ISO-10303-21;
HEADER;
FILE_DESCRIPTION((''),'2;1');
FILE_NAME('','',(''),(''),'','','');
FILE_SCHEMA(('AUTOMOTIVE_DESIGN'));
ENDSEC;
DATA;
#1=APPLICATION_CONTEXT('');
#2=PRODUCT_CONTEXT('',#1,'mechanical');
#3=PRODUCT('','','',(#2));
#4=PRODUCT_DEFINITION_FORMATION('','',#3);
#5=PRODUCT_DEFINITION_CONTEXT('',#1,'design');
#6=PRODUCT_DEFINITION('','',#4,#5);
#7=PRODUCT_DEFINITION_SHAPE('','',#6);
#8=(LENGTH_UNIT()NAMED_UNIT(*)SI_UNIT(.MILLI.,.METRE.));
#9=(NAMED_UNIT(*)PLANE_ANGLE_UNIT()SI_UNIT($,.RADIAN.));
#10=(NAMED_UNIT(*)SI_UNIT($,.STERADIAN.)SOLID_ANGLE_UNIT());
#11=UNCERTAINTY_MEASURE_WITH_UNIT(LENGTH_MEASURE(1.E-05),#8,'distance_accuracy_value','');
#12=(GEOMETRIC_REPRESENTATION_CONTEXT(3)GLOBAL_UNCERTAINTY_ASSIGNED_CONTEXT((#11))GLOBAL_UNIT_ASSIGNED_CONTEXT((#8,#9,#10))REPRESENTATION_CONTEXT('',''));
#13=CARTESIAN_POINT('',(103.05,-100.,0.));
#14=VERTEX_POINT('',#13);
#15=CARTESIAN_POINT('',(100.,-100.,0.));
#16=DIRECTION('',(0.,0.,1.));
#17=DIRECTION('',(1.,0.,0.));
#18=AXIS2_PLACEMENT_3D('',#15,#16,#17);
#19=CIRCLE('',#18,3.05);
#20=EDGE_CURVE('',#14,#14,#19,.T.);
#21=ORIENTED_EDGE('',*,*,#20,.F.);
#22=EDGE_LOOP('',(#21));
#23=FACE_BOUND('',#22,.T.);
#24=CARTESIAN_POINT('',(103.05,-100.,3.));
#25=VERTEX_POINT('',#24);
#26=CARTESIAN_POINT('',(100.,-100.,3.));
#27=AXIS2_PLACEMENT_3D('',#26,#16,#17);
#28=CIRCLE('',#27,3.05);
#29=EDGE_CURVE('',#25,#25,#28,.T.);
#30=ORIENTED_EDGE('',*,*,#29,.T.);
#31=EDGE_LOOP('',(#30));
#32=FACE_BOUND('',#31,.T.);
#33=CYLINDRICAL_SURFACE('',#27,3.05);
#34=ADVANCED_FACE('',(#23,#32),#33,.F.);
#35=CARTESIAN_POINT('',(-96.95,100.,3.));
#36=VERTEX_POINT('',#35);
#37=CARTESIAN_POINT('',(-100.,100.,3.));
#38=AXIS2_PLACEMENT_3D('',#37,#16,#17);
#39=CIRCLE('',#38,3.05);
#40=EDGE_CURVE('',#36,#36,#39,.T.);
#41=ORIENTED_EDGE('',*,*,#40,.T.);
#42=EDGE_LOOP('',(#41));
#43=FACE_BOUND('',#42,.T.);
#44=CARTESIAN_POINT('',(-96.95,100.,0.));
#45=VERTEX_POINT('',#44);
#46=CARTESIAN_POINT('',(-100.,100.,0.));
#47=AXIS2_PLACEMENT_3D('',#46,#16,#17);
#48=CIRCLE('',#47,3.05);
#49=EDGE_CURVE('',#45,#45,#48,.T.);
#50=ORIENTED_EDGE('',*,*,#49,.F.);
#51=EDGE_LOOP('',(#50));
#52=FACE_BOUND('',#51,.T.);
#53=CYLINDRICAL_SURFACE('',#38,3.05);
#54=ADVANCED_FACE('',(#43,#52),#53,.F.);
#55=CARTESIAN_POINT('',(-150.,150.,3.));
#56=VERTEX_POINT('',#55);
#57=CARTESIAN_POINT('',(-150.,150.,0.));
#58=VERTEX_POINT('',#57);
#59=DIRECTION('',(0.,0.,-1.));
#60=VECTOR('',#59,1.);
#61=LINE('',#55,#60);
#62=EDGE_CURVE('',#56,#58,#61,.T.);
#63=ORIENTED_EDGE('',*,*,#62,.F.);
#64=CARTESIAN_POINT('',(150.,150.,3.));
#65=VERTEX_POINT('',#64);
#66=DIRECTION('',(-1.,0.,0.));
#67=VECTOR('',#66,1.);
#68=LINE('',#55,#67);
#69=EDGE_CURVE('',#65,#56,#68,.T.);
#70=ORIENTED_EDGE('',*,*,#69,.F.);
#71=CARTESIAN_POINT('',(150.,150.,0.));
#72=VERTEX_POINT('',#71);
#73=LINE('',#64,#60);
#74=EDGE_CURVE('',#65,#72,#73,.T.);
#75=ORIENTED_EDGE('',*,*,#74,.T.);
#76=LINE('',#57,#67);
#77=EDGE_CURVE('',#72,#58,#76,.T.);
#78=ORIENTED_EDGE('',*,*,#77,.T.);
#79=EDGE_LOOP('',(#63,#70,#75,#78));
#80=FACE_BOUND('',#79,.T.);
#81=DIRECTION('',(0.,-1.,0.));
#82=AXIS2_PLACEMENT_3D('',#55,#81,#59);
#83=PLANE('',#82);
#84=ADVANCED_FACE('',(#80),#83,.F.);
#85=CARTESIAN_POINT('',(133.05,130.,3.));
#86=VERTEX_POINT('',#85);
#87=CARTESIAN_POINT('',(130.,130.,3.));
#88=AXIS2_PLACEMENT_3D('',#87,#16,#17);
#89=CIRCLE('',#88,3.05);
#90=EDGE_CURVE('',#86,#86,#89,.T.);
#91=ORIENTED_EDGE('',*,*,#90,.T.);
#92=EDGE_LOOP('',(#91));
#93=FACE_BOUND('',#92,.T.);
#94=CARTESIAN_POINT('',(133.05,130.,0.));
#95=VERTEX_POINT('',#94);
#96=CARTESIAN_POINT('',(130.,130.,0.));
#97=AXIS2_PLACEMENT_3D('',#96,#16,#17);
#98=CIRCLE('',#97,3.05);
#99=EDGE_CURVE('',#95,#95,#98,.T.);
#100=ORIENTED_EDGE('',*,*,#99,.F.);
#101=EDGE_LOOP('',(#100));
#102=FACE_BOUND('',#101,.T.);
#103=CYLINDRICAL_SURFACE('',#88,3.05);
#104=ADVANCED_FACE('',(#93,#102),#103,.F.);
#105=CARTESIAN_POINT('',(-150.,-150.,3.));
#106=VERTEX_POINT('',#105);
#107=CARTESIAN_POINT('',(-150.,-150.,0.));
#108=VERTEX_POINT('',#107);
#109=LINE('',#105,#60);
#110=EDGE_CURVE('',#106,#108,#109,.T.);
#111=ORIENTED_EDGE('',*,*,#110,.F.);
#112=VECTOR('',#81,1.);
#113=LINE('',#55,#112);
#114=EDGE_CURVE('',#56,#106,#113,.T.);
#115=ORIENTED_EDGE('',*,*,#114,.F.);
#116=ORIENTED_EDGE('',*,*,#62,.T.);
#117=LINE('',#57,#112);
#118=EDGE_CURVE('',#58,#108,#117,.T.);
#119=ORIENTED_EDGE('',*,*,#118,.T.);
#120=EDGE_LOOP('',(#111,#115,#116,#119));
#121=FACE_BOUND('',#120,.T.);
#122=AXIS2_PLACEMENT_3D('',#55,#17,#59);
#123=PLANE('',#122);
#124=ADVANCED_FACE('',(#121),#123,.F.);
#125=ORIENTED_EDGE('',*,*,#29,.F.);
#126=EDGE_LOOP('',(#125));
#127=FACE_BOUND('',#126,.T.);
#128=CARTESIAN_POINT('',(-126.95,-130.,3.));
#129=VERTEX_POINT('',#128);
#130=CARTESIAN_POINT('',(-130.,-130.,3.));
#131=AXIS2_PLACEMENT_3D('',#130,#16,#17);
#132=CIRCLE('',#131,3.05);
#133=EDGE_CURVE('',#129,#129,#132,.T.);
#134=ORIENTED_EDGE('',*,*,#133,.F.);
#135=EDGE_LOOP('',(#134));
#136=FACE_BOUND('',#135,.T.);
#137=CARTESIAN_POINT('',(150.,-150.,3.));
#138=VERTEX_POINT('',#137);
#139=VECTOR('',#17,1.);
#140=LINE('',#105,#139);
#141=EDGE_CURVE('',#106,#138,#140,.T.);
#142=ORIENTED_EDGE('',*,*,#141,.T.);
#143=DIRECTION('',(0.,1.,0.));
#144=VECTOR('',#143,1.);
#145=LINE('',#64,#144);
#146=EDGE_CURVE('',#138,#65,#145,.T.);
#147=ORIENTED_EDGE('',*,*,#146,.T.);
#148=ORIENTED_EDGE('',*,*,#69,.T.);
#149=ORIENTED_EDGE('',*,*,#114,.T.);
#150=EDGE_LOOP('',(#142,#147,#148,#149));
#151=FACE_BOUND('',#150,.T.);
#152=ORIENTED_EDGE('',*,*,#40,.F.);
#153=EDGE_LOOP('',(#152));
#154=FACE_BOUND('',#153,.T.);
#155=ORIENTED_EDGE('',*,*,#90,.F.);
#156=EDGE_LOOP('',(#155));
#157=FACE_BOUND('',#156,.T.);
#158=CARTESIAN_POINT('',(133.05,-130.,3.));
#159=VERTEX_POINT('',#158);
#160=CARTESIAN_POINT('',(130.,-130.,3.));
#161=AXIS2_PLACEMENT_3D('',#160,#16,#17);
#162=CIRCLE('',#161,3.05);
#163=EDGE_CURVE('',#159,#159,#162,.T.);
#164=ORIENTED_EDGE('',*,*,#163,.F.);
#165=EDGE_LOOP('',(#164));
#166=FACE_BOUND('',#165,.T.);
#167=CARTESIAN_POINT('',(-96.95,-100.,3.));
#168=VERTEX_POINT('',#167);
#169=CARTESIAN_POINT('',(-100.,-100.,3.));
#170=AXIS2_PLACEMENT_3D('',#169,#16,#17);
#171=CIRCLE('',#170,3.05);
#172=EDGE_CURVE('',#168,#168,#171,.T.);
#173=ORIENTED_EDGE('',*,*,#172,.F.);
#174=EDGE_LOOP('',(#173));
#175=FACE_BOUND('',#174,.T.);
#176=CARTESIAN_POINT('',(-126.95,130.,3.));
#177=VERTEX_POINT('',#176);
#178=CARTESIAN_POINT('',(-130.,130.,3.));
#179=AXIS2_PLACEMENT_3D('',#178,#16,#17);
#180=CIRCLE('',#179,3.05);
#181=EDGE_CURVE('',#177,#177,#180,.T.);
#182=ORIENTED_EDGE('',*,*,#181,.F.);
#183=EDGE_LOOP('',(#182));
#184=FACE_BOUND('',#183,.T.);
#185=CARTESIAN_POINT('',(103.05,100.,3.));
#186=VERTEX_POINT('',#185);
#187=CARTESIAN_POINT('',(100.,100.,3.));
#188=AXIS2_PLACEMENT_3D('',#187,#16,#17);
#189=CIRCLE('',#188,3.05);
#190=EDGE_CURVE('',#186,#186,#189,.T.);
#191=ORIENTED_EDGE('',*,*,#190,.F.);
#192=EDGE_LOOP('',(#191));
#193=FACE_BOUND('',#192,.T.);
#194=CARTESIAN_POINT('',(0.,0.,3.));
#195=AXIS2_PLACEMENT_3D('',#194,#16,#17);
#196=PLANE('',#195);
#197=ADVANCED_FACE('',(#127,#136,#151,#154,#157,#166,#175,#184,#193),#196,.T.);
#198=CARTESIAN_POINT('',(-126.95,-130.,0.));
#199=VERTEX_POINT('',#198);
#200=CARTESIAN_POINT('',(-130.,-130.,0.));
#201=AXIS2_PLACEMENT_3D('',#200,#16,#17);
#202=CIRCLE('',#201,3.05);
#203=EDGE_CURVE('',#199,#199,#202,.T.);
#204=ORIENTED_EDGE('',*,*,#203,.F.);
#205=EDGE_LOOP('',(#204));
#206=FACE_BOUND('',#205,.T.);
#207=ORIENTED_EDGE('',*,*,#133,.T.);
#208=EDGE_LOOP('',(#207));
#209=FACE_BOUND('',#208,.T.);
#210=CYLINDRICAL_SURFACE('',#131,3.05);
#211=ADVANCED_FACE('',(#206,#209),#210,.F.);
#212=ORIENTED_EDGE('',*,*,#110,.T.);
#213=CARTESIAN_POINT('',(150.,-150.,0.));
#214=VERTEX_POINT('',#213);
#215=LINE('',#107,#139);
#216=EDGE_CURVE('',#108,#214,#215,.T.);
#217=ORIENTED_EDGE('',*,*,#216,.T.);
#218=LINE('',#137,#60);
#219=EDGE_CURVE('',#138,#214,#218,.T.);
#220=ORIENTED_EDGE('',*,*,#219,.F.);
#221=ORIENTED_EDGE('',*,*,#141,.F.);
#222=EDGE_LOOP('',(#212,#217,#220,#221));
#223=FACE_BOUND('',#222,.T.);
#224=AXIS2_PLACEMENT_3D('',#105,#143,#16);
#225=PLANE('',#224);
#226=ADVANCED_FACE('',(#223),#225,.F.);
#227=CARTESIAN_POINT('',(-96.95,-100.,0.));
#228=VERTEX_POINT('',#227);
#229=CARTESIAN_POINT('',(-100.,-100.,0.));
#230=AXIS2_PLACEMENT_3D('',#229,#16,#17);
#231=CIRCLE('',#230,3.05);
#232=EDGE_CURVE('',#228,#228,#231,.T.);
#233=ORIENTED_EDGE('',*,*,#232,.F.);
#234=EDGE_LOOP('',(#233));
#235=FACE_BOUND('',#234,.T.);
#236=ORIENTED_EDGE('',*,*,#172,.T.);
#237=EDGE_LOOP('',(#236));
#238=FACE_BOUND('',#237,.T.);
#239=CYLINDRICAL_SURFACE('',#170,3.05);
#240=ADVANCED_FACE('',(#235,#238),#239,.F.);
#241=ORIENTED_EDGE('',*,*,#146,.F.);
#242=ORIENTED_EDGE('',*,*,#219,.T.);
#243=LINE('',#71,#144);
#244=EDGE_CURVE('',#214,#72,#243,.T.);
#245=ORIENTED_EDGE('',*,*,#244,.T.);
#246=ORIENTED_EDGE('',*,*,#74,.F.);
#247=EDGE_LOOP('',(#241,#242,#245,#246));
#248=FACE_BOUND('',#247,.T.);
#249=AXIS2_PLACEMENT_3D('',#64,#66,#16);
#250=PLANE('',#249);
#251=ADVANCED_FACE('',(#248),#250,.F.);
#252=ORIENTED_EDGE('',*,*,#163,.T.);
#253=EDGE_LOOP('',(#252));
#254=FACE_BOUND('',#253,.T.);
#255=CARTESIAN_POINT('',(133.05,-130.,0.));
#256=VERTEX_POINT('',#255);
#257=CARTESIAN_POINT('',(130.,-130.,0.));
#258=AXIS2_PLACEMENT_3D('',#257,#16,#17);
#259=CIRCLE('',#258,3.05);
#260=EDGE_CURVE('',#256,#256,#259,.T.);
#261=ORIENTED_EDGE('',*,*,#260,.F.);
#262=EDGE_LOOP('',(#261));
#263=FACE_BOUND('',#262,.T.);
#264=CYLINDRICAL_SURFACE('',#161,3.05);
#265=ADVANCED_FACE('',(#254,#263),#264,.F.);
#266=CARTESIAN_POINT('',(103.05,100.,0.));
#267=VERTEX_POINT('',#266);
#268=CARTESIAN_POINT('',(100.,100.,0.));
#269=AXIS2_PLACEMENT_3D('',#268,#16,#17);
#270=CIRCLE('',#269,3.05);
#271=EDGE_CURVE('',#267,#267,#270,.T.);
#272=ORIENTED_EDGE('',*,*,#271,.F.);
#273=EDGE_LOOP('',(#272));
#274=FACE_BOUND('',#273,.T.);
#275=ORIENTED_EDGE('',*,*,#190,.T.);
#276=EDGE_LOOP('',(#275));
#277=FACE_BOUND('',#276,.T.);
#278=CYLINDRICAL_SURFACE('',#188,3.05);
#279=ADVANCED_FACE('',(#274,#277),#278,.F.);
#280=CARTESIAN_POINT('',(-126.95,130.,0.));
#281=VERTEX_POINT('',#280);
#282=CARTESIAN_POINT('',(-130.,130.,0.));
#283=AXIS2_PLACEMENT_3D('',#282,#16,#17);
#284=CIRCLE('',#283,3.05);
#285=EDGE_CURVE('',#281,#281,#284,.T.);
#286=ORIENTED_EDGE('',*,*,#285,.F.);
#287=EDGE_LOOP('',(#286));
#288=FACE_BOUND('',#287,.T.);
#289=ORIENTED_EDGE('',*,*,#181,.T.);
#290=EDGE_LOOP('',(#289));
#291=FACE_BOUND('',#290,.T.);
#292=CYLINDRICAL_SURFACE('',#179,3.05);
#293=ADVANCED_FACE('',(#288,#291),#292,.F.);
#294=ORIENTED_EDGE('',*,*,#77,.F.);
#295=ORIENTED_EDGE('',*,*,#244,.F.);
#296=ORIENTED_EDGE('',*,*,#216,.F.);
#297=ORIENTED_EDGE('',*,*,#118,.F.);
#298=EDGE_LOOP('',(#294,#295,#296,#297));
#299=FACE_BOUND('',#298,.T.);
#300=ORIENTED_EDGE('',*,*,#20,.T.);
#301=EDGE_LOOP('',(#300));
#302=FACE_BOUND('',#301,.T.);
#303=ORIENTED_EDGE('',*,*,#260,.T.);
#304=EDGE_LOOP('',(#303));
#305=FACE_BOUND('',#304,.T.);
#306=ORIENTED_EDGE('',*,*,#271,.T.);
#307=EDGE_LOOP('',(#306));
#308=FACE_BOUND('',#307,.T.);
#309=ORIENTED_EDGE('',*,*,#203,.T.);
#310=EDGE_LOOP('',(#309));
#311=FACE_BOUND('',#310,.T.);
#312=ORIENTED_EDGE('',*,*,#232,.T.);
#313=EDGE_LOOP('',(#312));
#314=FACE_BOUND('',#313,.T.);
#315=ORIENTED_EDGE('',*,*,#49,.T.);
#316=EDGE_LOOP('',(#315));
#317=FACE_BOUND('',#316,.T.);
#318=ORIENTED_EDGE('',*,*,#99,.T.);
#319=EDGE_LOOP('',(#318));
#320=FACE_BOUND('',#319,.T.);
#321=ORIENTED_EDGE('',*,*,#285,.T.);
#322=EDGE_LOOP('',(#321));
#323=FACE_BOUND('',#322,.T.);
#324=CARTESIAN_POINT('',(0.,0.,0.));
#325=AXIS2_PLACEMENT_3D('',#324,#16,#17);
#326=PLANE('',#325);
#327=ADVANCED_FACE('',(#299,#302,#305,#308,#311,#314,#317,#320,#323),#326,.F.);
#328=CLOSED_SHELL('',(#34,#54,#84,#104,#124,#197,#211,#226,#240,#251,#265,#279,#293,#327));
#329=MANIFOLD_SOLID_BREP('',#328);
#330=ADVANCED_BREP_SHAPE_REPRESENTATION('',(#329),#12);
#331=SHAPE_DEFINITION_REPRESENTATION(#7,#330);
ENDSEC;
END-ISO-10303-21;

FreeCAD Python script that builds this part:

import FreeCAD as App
import Part
import Sketcher

V = App.Vector
Q = App.Units.Quantity

doc = App.newDocument("Part")
params = doc.addObject("Spreadsheet::Sheet", "Params")
for row, (alias, value) in enumerate([
    ("sketch1_width", "300 mm"),
    ("pad1_length", "3 mm"),
    ("sketch2_diameter", "6.1 mm"),
    ("hole_diameter", "6.1 mm"),
    ("hole_depth", "23 mm"),
], start=1):
    params.set(f"A{row}", alias)
    params.set(f"B{row}", "=" + value)
    params.setAlias(f"B{row}", alias)

body = doc.addObject("PartDesign::Body", "Body")

sketch1 = body.newObject("Sketcher::SketchObject", "Sketch")
sketch1.AttachmentSupport = (doc.getObject("XY_Plane"), [""])
sketch1.MapMode = "FlatFace"
sketch1.addGeometry(Part.LineSegment(V(-150, 150, 0), V(-150, -150, 0)), False)
sketch1.addGeometry(Part.LineSegment(V(-150, -150, 0), V(150, -150, 0)), False)
sketch1.addGeometry(Part.LineSegment(V(150, -150, 0), V(150, 150, 0)), False)
sketch1.addGeometry(Part.LineSegment(V(150, 150, 0), V(-150, 150, 0)), False)
sketch1.addConstraint(Sketcher.Constraint("Coincident", 0, 2, 1, 1))
sketch1.addConstraint(Sketcher.Constraint("Coincident", 1, 2, 2, 1))
sketch1.addConstraint(Sketcher.Constraint("Coincident", 2, 2, 3, 1))
sketch1.addConstraint(Sketcher.Constraint("Coincident", 3, 2, 0, 1))
sketch1.addConstraint(Sketcher.Constraint("Vertical", 0))
sketch1.addConstraint(Sketcher.Constraint("Horizontal", 1))
sketch1.addConstraint(Sketcher.Constraint("Vertical", 2))
sketch1.addConstraint(Sketcher.Constraint("Horizontal", 3))
sketch1.addConstraint(Sketcher.Constraint("Symmetric", 0, 2, 2, 2, -1, 1))
sketch1.addConstraint(Sketcher.Constraint("Equal", 3, 0))
sketch1.addConstraint(Sketcher.Constraint("DistanceX", 1, 1, 1, 2, Q("300 mm")))
sketch1.setExpression("Constraints[10]", "Params.sketch1_width")
pad1 = body.newObject("PartDesign::Pad", "Pad")
pad1.Profile = sketch1
pad1.setExpression("Length", "Params.pad1_length")

sketch2 = body.newObject("Sketcher::SketchObject", "Sketch001")
sketch2.AttachmentSupport = (doc.getObject("XY_Plane"), [""])
sketch2.MapMode = "FlatFace"
sketch2.AttachmentOffset = App.Placement(V(0, 0, 3), App.Rotation())
sketch2.addGeometry(Part.Circle(V(-130, -130, 0), V(0, 0, 1), 3), False)
sketch2.addGeometry(Part.Circle(V(-100, -100, 0), V(0, 0, 1), 3), False)
sketch2.addGeometry(Part.Circle(V(130, -130, 0), V(0, 0, 1), 3), False)
sketch2.addGeometry(Part.Circle(V(100, -100, 0), V(0, 0, 1), 3), False)
sketch2.addGeometry(Part.Circle(V(130, 130, 0), V(0, 0, 1), 3), False)
sketch2.addGeometry(Part.Circle(V(-100, 100, 0), V(0, 0, 1), 3), False)
sketch2.addGeometry(Part.Circle(V(-130, 130, 0), V(0, 0, 1), 3), False)
sketch2.addGeometry(Part.Circle(V(100, 100, 0), V(0, 0, 1), 3), False)
sketch2.addConstraint(Sketcher.Constraint("Equal", 0, 1))
sketch2.addConstraint(Sketcher.Constraint("Equal", 1, 2))
sketch2.addConstraint(Sketcher.Constraint("Equal", 2, 3))
sketch2.addConstraint(Sketcher.Constraint("Equal", 3, 4))
sketch2.addConstraint(Sketcher.Constraint("Equal", 4, 5))
sketch2.addConstraint(Sketcher.Constraint("Equal", 5, 6))
sketch2.addConstraint(Sketcher.Constraint("Equal", 6, 7))
sketch2.addConstraint(Sketcher.Constraint("Symmetric", 0, 3, 4, 3, -1, 1))
sketch2.addConstraint(Sketcher.Constraint("Symmetric", 3, 3, 5, 3, -1, 1))
sketch2.addConstraint(Sketcher.Constraint("Symmetric", 2, 3, 6, 3, -1, 1))
sketch2.addConstraint(Sketcher.Constraint("Symmetric", 1, 3, 7, 3, -1, 1))
sketch2.addConstraint(Sketcher.Constraint("Symmetric", 0, 3, 2, 3, -2))
sketch2.addConstraint(Sketcher.Constraint("Symmetric", 1, 3, 3, 3, -2))
sketch2.addConstraint(Sketcher.Constraint("Diameter", 0, Q("6.1 mm")))
sketch2.addConstraint(Sketcher.Constraint("DistanceX", 0, 3, -1, 1, Q("130 mm")))
sketch2.addConstraint(Sketcher.Constraint("DistanceY", 0, 3, -1, 1, Q("130 mm")))
sketch2.addConstraint(Sketcher.Constraint("DistanceX", 1, 3, -1, 1, Q("100 mm")))
sketch2.addConstraint(Sketcher.Constraint("DistanceY", 1, 3, -1, 1, Q("100 mm")))
sketch2.setExpression("Constraints[13]", "Params.sketch2_diameter")
doc.recompute()
hole = body.newObject("PartDesign::Hole", "Hole")
hole.Profile = sketch2
hole.ThreadType = "None"
hole.setExpression("Diameter", "Params.hole_diameter")
hole.DepthType = "Dimension"
hole.setExpression("Depth", "Params.hole_depth")
hole.DrillPoint = "Angled"
hole.DrillPointAngle = 118

doc.recompute()
